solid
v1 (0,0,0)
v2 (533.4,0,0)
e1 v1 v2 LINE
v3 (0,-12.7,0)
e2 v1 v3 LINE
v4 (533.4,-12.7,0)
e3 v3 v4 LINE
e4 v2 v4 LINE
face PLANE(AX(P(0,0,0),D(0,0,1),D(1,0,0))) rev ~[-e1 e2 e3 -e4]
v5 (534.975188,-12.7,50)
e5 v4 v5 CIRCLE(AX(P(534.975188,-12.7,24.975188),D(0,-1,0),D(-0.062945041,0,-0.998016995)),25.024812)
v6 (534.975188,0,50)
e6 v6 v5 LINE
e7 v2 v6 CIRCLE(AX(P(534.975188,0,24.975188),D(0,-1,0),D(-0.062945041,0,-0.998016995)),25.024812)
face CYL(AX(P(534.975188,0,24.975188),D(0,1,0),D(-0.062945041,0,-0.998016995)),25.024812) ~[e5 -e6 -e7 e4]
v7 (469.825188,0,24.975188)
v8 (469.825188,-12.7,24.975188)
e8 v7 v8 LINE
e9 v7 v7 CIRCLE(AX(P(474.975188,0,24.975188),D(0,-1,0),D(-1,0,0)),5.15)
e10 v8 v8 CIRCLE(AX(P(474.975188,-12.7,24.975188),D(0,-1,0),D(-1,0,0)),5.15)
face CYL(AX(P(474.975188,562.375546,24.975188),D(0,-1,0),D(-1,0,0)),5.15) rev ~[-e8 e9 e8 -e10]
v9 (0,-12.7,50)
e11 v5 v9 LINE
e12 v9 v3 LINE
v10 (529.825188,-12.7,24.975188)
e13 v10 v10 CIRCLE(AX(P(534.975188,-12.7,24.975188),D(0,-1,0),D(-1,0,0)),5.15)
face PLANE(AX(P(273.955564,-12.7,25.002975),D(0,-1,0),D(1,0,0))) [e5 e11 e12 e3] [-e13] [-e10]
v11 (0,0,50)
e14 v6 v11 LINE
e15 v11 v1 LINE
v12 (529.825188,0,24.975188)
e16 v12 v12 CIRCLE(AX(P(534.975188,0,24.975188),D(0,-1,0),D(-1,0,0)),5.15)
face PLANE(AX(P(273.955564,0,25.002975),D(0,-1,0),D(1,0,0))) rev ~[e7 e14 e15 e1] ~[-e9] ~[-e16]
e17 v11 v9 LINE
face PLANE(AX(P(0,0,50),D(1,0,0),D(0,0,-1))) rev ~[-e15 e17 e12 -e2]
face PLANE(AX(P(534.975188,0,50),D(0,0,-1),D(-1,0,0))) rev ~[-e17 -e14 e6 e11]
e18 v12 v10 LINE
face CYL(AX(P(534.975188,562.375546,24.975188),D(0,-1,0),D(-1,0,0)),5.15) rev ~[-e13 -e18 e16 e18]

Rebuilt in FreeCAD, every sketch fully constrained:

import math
import FreeCAD as App
import Part
import Sketcher
Q = App.Units.Quantity

doc = App.newDocument("Part")
body = doc.addObject("PartDesign::Body", "Body")

# Sketch on XZ plane
sketch1 = body.newObject("Sketcher::SketchObject", "Sketch")
sketch1.AttachmentSupport = (doc.getObject("XZ_Plane"), [""])
sketch1.MapMode = "FlatFace"
sketch1.addGeometry(Part.LineSegment(App.Vector(0, 50, 0), App.Vector(0, 0, 0)), False)
sketch1.addGeometry(Part.LineSegment(App.Vector(0, 0, 0), App.Vector(533, 0, 0)), False)
sketch1.addGeometry(Part.ArcOfCircle(Part.Circle(App.Vector(535, 25, 0), App.Vector(0, 0, 1), 25), math.radians(-94), math.radians(90)), False)
sketch1.addGeometry(Part.LineSegment(App.Vector(535, 50, 0), App.Vector(0, 50, 0)), False)
sketch1.addConstraint(Sketcher.Constraint("Coincident", 0, 2, 1, 1))
sketch1.addConstraint(Sketcher.Constraint("Coincident", 1, 2, 2, 1))
sketch1.addConstraint(Sketcher.Constraint("Tangent", 2, 2, 3, 1))
sketch1.addConstraint(Sketcher.Constraint("Coincident", 3, 2, 0, 1))
sketch1.addConstraint(Sketcher.Constraint("Vertical", 0))
sketch1.addConstraint(Sketcher.Constraint("Horizontal", 1))
sketch1.addConstraint(Sketcher.Constraint("Horizontal", 3))
sketch1.addConstraint(Sketcher.Constraint("Coincident", 0, 2, -1, 1))
sketch1.addConstraint(Sketcher.Constraint("DistanceY", 0, 2, 0, 1, Q("50 mm")))
sketch1.addConstraint(Sketcher.Constraint("DistanceX", 1, 1, 1, 2, Q("533.4 mm")))
sketch1.addConstraint(Sketcher.Constraint("Radius", 2, Q("25.024812 mm")))
pad1 = body.newObject("PartDesign::Pad", "Pad")
pad1.Profile = sketch1
pad1.Length = 12.7

# Sketch on XZ plane
sketch2 = body.newObject("Sketcher::SketchObject", "Sketch001")
sketch2.AttachmentSupport = (doc.getObject("XZ_Plane"), [""])
sketch2.MapMode = "FlatFace"
sketch2.addGeometry(Part.Circle(App.Vector(475, 25, 0), App.Vector(0, 0, 1), 5), False)
sketch2.addGeometry(Part.Circle(App.Vector(535, 25, 0), App.Vector(0, 0, 1), 5), False)
sketch2.addConstraint(Sketcher.Constraint("Equal", 0, 1))
sketch2.addConstraint(Sketcher.Constraint("Horizontal", 0, 3, 1, 3))
sketch2.addConstraint(Sketcher.Constraint("Diameter", 0, Q("10.3 mm")))
sketch2.addConstraint(Sketcher.Constraint("DistanceX", 0, 3, 1, 3, Q("60 mm")))
sketch2.addConstraint(Sketcher.Constraint("DistanceX", -1, 1, 0, 3, Q("474.975188 mm")))
sketch2.addConstraint(Sketcher.Constraint("DistanceY", -1, 1, 0, 3, Q("24.975188 mm")))
doc.recompute()
hole = body.newObject("PartDesign::Hole", "Hole")
hole.Profile = sketch2
hole.ThreadType = "None"
hole.Diameter = 10.3
hole.DepthType = "ThroughAll"
hole.Reversed = True

doc.recompute()
